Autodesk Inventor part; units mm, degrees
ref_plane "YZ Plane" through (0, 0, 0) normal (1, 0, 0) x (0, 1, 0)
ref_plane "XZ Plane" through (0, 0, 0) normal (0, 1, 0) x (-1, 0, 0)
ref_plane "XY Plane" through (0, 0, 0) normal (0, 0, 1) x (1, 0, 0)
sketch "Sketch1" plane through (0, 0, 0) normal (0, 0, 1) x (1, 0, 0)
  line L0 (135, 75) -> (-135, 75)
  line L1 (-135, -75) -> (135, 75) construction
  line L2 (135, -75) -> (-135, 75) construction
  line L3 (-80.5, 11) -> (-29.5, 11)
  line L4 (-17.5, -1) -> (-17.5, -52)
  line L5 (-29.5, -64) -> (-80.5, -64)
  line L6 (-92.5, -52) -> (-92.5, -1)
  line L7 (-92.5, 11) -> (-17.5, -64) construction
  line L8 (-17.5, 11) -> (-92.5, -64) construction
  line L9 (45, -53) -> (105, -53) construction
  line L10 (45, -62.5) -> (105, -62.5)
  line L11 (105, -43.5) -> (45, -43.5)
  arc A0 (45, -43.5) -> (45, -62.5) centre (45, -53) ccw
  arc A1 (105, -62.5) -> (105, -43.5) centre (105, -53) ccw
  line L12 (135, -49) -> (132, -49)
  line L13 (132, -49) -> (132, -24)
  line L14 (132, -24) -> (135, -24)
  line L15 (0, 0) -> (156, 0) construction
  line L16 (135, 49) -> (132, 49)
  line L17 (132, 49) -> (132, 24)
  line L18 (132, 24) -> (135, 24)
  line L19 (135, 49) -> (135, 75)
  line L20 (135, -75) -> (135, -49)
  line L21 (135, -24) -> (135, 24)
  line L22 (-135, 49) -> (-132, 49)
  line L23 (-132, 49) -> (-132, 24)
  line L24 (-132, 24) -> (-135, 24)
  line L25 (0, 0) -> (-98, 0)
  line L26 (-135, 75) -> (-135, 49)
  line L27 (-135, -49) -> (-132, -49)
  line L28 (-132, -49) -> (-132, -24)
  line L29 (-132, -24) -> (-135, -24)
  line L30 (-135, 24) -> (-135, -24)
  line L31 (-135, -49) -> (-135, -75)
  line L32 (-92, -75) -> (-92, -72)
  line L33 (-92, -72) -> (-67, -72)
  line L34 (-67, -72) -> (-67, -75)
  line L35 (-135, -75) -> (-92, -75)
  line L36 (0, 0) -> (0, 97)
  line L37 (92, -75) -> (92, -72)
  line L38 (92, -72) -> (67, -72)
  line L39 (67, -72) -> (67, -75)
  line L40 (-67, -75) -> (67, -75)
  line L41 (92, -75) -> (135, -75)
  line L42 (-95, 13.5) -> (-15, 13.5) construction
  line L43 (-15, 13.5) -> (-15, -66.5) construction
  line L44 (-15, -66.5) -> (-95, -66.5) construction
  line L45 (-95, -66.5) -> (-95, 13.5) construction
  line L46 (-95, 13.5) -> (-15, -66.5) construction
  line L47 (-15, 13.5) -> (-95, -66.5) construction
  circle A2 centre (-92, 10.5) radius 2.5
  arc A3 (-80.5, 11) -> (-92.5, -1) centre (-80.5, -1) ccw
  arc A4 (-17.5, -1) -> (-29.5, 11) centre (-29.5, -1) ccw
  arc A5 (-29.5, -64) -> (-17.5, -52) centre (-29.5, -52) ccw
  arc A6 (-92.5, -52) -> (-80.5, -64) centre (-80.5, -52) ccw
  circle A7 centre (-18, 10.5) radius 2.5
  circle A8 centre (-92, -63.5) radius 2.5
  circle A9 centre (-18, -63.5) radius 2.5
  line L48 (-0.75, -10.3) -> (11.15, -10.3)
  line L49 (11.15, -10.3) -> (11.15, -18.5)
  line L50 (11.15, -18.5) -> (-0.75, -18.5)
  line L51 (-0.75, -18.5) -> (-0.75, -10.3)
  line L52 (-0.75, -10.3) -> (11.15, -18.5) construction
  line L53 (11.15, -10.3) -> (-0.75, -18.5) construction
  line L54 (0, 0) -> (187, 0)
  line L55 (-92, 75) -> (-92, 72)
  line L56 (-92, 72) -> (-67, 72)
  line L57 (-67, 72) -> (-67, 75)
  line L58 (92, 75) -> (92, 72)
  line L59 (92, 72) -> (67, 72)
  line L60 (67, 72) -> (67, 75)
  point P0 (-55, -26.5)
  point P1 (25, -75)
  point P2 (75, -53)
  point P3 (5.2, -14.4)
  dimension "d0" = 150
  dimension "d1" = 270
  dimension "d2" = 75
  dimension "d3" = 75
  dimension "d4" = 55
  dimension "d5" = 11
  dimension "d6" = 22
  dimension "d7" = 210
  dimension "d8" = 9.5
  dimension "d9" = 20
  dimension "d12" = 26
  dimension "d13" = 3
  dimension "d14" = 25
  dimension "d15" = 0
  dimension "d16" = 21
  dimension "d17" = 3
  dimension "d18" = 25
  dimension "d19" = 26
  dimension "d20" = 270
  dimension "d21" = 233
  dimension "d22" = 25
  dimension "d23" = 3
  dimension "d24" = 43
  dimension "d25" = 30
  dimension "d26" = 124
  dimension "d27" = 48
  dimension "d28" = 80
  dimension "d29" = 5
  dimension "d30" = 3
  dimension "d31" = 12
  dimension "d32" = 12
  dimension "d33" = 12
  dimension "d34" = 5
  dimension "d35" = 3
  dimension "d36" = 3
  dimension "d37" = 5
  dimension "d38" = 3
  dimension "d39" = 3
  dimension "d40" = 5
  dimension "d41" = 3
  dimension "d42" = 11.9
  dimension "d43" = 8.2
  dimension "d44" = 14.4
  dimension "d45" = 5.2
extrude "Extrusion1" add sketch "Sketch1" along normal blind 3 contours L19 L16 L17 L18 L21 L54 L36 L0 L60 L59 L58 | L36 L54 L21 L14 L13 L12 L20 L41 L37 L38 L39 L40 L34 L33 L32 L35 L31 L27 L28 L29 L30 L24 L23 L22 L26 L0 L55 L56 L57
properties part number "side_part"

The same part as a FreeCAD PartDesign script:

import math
import FreeCAD as App
import Part
import Sketcher
from FreeCAD import Vector
Q = App.Units.Quantity

doc = App.newDocument("Part")
body = doc.addObject("PartDesign::Body", "Body")

sketch1 = doc.addObject("Sketcher::SketchObject", "Sketch")
body.addObject(sketch1)
sketch1.AttachmentSupport = (doc.XY_Plane, [""])
sketch1.MapMode = "FlatFace"
sketch1.addGeometry(Part.LineSegment(Vector(135, 49, 0), Vector(135, 75, 0)), False)
sketch1.addGeometry(Part.LineSegment(Vector(135, 75, 0), Vector(92, 75, 0)), False)
sketch1.addGeometry(Part.LineSegment(Vector(92, 75, 0), Vector(92, 72, 0)), False)
sketch1.addGeometry(Part.LineSegment(Vector(92, 72, 0), Vector(67, 72, 0)), False)
sketch1.addGeometry(Part.LineSegment(Vector(67, 72, 0), Vector(67, 75, 0)), False)
sketch1.addGeometry(Part.LineSegment(Vector(67, 75, 0), Vector(-67, 75, 0)), False)
sketch1.addGeometry(Part.LineSegment(Vector(-67, 75, 0), Vector(-67, 72, 0)), False)
sketch1.addGeometry(Part.LineSegment(Vector(-67, 72, 0), Vector(-92, 72, 0)), False)
sketch1.addGeometry(Part.LineSegment(Vector(-92, 72, 0), Vector(-92, 75, 0)), False)
sketch1.addGeometry(Part.LineSegment(Vector(-92, 75, 0), Vector(-135, 75, 0)), False)
sketch1.addGeometry(Part.LineSegment(Vector(-135, 75, 0), Vector(-135, 49, 0)), False)
sketch1.addGeometry(Part.LineSegment(Vector(-135, 49, 0), Vector(-132, 49, 0)), False)
sketch1.addGeometry(Part.LineSegment(Vector(-132, 49, 0), Vector(-132, 24, 0)), False)
sketch1.addGeometry(Part.LineSegment(Vector(-132, 24, 0), Vector(-135, 24, 0)), False)
sketch1.addGeometry(Part.LineSegment(Vector(-135, 24, 0), Vector(-135, -24, 0)), False)
sketch1.addGeometry(Part.LineSegment(Vector(-135, -24, 0), Vector(-132, -24, 0)), False)
sketch1.addGeometry(Part.LineSegment(Vector(-132, -24, 0), Vector(-132, -49, 0)), False)
sketch1.addGeometry(Part.LineSegment(Vector(-132, -49, 0), Vector(-135, -49, 0)), False)
sketch1.addGeometry(Part.LineSegment(Vector(-135, -49, 0), Vector(-135, -75, 0)), False)
sketch1.addGeometry(Part.LineSegment(Vector(-135, -75, 0), Vector(-92, -75, 0)), False)
sketch1.addGeometry(Part.LineSegment(Vector(-92, -75, 0), Vector(-92, -72, 0)), False)
sketch1.addGeometry(Part.LineSegment(Vector(-92, -72, 0), Vector(-67, -72, 0)), False)
sketch1.addGeometry(Part.LineSegment(Vector(-67, -72, 0), Vector(-67, -75, 0)), False)
sketch1.addGeometry(Part.LineSegment(Vector(-67, -75, 0), Vector(67, -75, 0)), False)
sketch1.addGeometry(Part.LineSegment(Vector(67, -75, 0), Vector(67, -72, 0)), False)
sketch1.addGeometry(Part.LineSegment(Vector(67, -72, 0), Vector(92, -72, 0)), False)
sketch1.addGeometry(Part.LineSegment(Vector(92, -72, 0), Vector(92, -75, 0)), False)
sketch1.addGeometry(Part.LineSegment(Vector(92, -75, 0), Vector(135, -75, 0)), False)
sketch1.addGeometry(Part.LineSegment(Vector(135, -75, 0), Vector(135, -49, 0)), False)
sketch1.addGeometry(Part.LineSegment(Vector(135, -49, 0), Vector(132, -49, 0)), False)
sketch1.addGeometry(Part.LineSegment(Vector(132, -49, 0), Vector(132, -24, 0)), False)
sketch1.addGeometry(Part.LineSegment(Vector(132, -24, 0), Vector(135, -24, 0)), False)
sketch1.addGeometry(Part.LineSegment(Vector(135, -24, 0), Vector(135, 24, 0)), False)
sketch1.addGeometry(Part.LineSegment(Vector(135, 24, 0), Vector(132, 24, 0)), False)
sketch1.addGeometry(Part.LineSegment(Vector(132, 24, 0), Vector(132, 49, 0)), False)
sketch1.addGeometry(Part.LineSegment(Vector(132, 49, 0), Vector(135, 49, 0)), False)
sketch1.addGeometry(Part.Circle(Vector(-18, 10.5, 0), Vector(0, 0, 1), 2.5), False)
sketch1.addGeometry(Part.Circle(Vector(-92, -63.5, 0), Vector(0, 0, 1), 2.5), False)
sketch1.addGeometry(Part.Circle(Vector(-18, -63.5, 0), Vector(0, 0, 1), 2.5), False)
sketch1.addGeometry(Part.ArcOfCircle(Part.Circle(Vector(-29.5, -1, 0), Vector(0, 0, 1), 12), math.radians(5), math.radians(90)), False)
sketch1.addGeometry(Part.ArcOfCircle(Part.Circle(Vector(-29.5, -1, 0), Vector(0, 0, 1), 12), math.radians(0), math.radians(4.78)), False)
sketch1.addGeometry(Part.LineSegment(Vector(-17.5, -1, 0), Vector(-17.5, -52, 0)), False)
sketch1.addGeometry(Part.ArcOfCircle(Part.Circle(Vector(-29.5, -52, 0), Vector(0, 0, 1), 12), math.radians(-90), math.radians(0)), False)
sketch1.addGeometry(Part.LineSegment(Vector(-29.5, -64, 0), Vector(-80.5, -64, 0)), False)
sketch1.addGeometry(Part.ArcOfCircle(Part.Circle(Vector(-80.5, -52, 0), Vector(0, 0, 1), 12), math.radians(180), math.radians(270)), False)
sketch1.addGeometry(Part.LineSegment(Vector(-92.5, -52, 0), Vector(-92.5, -1, 0)), False)
sketch1.addGeometry(Part.ArcOfCircle(Part.Circle(Vector(-80.5, -1, 0), Vector(0, 0, 1), 12), math.radians(90), math.radians(180)), False)
sketch1.addGeometry(Part.LineSegment(Vector(-80.5, 11, 0), Vector(-29.5, 11, 0)), False)
sketch1.addGeometry(Part.LineSegment(Vector(105, -62.5, 0), Vector(45, -62.5, 0)), False)
sketch1.addGeometry(Part.ArcOfCircle(Part.Circle(Vector(45, -53, 0), Vector(0, 0, 1), 9.5), math.radians(90), math.radians(270)), False)
sketch1.addGeometry(Part.LineSegment(Vector(45, -43.5, 0), Vector(105, -43.5, 0)), False)
sketch1.addGeometry(Part.ArcOfCircle(Part.Circle(Vector(105, -53, 0), Vector(0, 0, 1), 9.5), math.radians(-90), math.radians(90)), False)
sketch1.addGeometry(Part.LineSegment(Vector(-0.8, -18.5, 0), Vector(-0.8, -10.3, 0)), False)
sketch1.addGeometry(Part.LineSegment(Vector(-0.8, -10.3, 0), Vector(11.2, -10.3, 0)), False)
sketch1.addGeometry(Part.LineSegment(Vector(11.2, -10.3, 0), Vector(11.2, -18.5, 0)), False)
sketch1.addGeometry(Part.LineSegment(Vector(11.2, -18.5, 0), Vector(-0.8, -18.5, 0)), False)
sketch1.addGeometry(Part.Circle(Vector(-92, 10.5, 0), Vector(0, 0, 1), 2.5), False)
sketch1.addConstraint(Sketcher.Constraint("Coincident", 0, 2, 1, 1))
sketch1.addConstraint(Sketcher.Constraint("Coincident", 1, 2, 2, 1))
sketch1.addConstraint(Sketcher.Constraint("Coincident", 2, 2, 3, 1))
sketch1.addConstraint(Sketcher.Constraint("Coincident", 3, 2, 4, 1))
sketch1.addConstraint(Sketcher.Constraint("Coincident", 4, 2, 5, 1))
sketch1.addConstraint(Sketcher.Constraint("Coincident", 5, 2, 6, 1))
sketch1.addConstraint(Sketcher.Constraint("Coincident", 6, 2, 7, 1))
sketch1.addConstraint(Sketcher.Constraint("Coincident", 7, 2, 8, 1))
sketch1.addConstraint(Sketcher.Constraint("Coincident", 8, 2, 9, 1))
sketch1.addConstraint(Sketcher.Constraint("Coincident", 9, 2, 10, 1))
sketch1.addConstraint(Sketcher.Constraint("Coincident", 10, 2, 11, 1))
sketch1.addConstraint(Sketcher.Constraint("Coincident", 11, 2, 12, 1))
sketch1.addConstraint(Sketcher.Constraint("Coincident", 12, 2, 13, 1))
sketch1.addConstraint(Sketcher.Constraint("Coincident", 13, 2, 14, 1))
sketch1.addConstraint(Sketcher.Constraint("Coincident", 14, 2, 15, 1))
sketch1.addConstraint(Sketcher.Constraint("Coincident", 15, 2, 16, 1))
sketch1.addConstraint(Sketcher.Constraint("Coincident", 16, 2, 17, 1))
sketch1.addConstraint(Sketcher.Constraint("Coincident", 17, 2, 18, 1))
sketch1.addConstraint(Sketcher.Constraint("Coincident", 18, 2, 19, 1))
sketch1.addConstraint(Sketcher.Constraint("Coincident", 19, 2, 20, 1))
sketch1.addConstraint(Sketcher.Constraint("Coincident", 20, 2, 21, 1))
sketch1.addConstraint(Sketcher.Constraint("Coincident", 21, 2, 22, 1))
sketch1.addConstraint(Sketcher.Constraint("Coincident", 22, 2, 23, 1))
sketch1.addConstraint(Sketcher.Constraint("Coincident", 23, 2, 24, 1))
sketch1.addConstraint(Sketcher.Constraint("Coincident", 24, 2, 25, 1))
sketch1.addConstraint(Sketcher.Constraint("Coincident", 25, 2, 26, 1))
sketch1.addConstraint(Sketcher.Constraint("Coincident", 26, 2, 27, 1))
sketch1.addConstraint(Sketcher.Constraint("Coincident", 27, 2, 28, 1))
sketch1.addConstraint(Sketcher.Constraint("Coincident", 28, 2, 29, 1))
sketch1.addConstraint(Sketcher.Constraint("Coincident", 29, 2, 30, 1))
sketch1.addConstraint(Sketcher.Constraint("Coincident", 30, 2, 31, 1))
sketch1.addConstraint(Sketcher.Constraint("Coincident", 31, 2, 32, 1))
sketch1.addConstraint(Sketcher.Constraint("Coincident", 32, 2, 33, 1))
sketch1.addConstraint(Sketcher.Constraint("Coincident", 33, 2, 34, 1))
sketch1.addConstraint(Sketcher.Constraint("Coincident", 34, 2, 35, 1))
sketch1.addConstraint(Sketcher.Constraint("Coincident", 35, 2, 0, 1))
sketch1.addConstraint(Sketcher.Constraint("Tangent", 39, 1, 40, 2))
sketch1.addConstraint(Sketcher.Constraint("Tangent", 40, 1, 41, 1))
sketch1.addConstraint(Sketcher.Constraint("Tangent", 41, 2, 42, 2))
sketch1.addConstraint(Sketcher.Constraint("Tangent", 42, 1, 43, 1))
sketch1.addConstraint(Sketcher.Constraint("Tangent", 43, 2, 44, 2))
sketch1.addConstraint(Sketcher.Constraint("Tangent", 44, 1, 45, 1))
sketch1.addConstraint(Sketcher.Constraint("Tangent", 45, 2, 46, 2))
sketch1.addConstraint(Sketcher.Constraint("Tangent", 46, 1, 47, 1))
sketch1.addConstraint(Sketcher.Constraint("Tangent", 47, 2, 39, 2))
sketch1.addConstraint(Sketcher.Constraint("Tangent", 48, 2, 49, 2))
sketch1.addConstraint(Sketcher.Constraint("Tangent", 49, 1, 50, 1))
sketch1.addConstraint(Sketcher.Constraint("Tangent", 50, 2, 51, 2))
sketch1.addConstraint(Sketcher.Constraint("Tangent", 51, 1, 48, 1))
sketch1.addConstraint(Sketcher.Constraint("Coincident", 52, 2, 53, 1))
sketch1.addConstraint(Sketcher.Constraint("Coincident", 53, 2, 54, 1))
sketch1.addConstraint(Sketcher.Constraint("Coincident", 54, 2, 55, 1))
sketch1.addConstraint(Sketcher.Constraint("Coincident", 55, 2, 52, 1))
sketch1.addConstraint(Sketcher.Constraint("Vertical", 0))
sketch1.addConstraint(Sketcher.Constraint("Horizontal", 1))
sketch1.addConstraint(Sketcher.Constraint("Vertical", 2))
sketch1.addConstraint(Sketcher.Constraint("Horizontal", 3))
sketch1.addConstraint(Sketcher.Constraint("Vertical", 4))
sketch1.addConstraint(Sketcher.Constraint("Horizontal", 5))
sketch1.addConstraint(Sketcher.Constraint("Vertical", 6))
sketch1.addConstraint(Sketcher.Constraint("Horizontal", 7))
sketch1.addConstraint(Sketcher.Constraint("Vertical", 8))
sketch1.addConstraint(Sketcher.Constraint("Horizontal", 9))
sketch1.addConstraint(Sketcher.Constraint("Vertical", 10))
sketch1.addConstraint(Sketcher.Constraint("Horizontal", 11))
sketch1.addConstraint(Sketcher.Constraint("Vertical", 12))
sketch1.addConstraint(Sketcher.Constraint("Horizontal", 13))
sketch1.addConstraint(Sketcher.Constraint("Vertical", 14))
sketch1.addConstraint(Sketcher.Constraint("Horizontal", 15))
sketch1.addConstraint(Sketcher.Constraint("Vertical", 16))
sketch1.addConstraint(Sketcher.Constraint("Horizontal", 17))
sketch1.addConstraint(Sketcher.Constraint("Vertical", 18))
sketch1.addConstraint(Sketcher.Constraint("Horizontal", 19))
sketch1.addConstraint(Sketcher.Constraint("Vertical", 20))
sketch1.addConstraint(Sketcher.Constraint("Horizontal", 21))
sketch1.addConstraint(Sketcher.Constraint("Vertical", 22))
sketch1.addConstraint(Sketcher.Constraint("Horizontal", 23))
sketch1.addConstraint(Sketcher.Constraint("Vertical", 24))
sketch1.addConstraint(Sketcher.Constraint("Horizontal", 25))
sketch1.addConstraint(Sketcher.Constraint("Vertical", 26))
sketch1.addConstraint(Sketcher.Constraint("Horizontal", 27))
sketch1.addConstraint(Sketcher.Constraint("Vertical", 28))
sketch1.addConstraint(Sketcher.Constraint("Horizontal", 29))
sketch1.addConstraint(Sketcher.Constraint("Vertical", 30))
sketch1.addConstraint(Sketcher.Constraint("Horizontal", 31))
sketch1.addConstraint(Sketcher.Constraint("Vertical", 32))
sketch1.addConstraint(Sketcher.Constraint("Horizontal", 33))
sketch1.addConstraint(Sketcher.Constraint("Vertical", 34))
sketch1.addConstraint(Sketcher.Constraint("Horizontal", 35))
sketch1.addConstraint(Sketcher.Constraint("Vertical", 41))
sketch1.addConstraint(Sketcher.Constraint("Horizontal", 43))
sketch1.addConstraint(Sketcher.Constraint("Vertical", 45))
sketch1.addConstraint(Sketcher.Constraint("Horizontal", 47))
sketch1.addConstraint(Sketcher.Constraint("Horizontal", 48))
sketch1.addConstraint(Sketcher.Constraint("Horizontal", 50))
sketch1.addConstraint(Sketcher.Constraint("Vertical", 52))
sketch1.addConstraint(Sketcher.Constraint("Horizontal", 53))
sketch1.addConstraint(Sketcher.Constraint("Vertical", 54))
sketch1.addConstraint(Sketcher.Constraint("Horizontal", 55))
sketch1.addConstraint(Sketcher.Constraint("Equal", 36, 37))
sketch1.addConstraint(Sketcher.Constraint("Equal", 37, 38))
sketch1.addConstraint(Sketcher.Constraint("Equal", 39, 40))
sketch1.addConstraint(Sketcher.Constraint("Equal", 40, 42))
sketch1.addConstraint(Sketcher.Constraint("Equal", 42, 44))
sketch1.addConstraint(Sketcher.Constraint("Equal", 44, 46))
sketch1.addConstraint(Sketcher.Constraint("Equal", 38, 56))
sketch1.addConstraint(Sketcher.Constraint("Symmetric", 0, 2, 18, 2, -1, 1))
sketch1.addConstraint(Sketcher.Constraint("Symmetric", 2, 2, 20, 2, -1, 1))
sketch1.addConstraint(Sketcher.Constraint("Symmetric", 4, 2, 22, 2, -1, 1))
sketch1.addConstraint(Sketcher.Constraint("Symmetric", 6, 2, 24, 2, -1, 1))
sketch1.addConstraint(Sketcher.Constraint("Symmetric", 8, 2, 26, 2, -1, 1))
sketch1.addConstraint(Sketcher.Constraint("Symmetric", 10, 2, 28, 2, -1, 1))
sketch1.addConstraint(Sketcher.Constraint("Symmetric", 12, 2, 30, 2, -1, 1))
sketch1.addConstraint(Sketcher.Constraint("Symmetric", 14, 2, 32, 2, -1, 1))
sketch1.addConstraint(Sketcher.Constraint("Symmetric", 16, 2, 34, 2, -1, 1))
sketch1.addConstraint(Sketcher.Constraint("Symmetric", 3, 2, 6, 2, -2))
sketch1.addConstraint(Sketcher.Constraint("Symmetric", 1, 2, 8, 2, -2))
sketch1.addConstraint(Sketcher.Constraint("Symmetric", 17, 2, 28, 2, -2))
sketch1.addConstraint(Sketcher.Constraint("Symmetric", 15, 2, 30, 2, -2))
sketch1.addConstraint(Sketcher.Constraint("PointOnObject", 39, 1, -1))
sketch1.addConstraint(Sketcher.Constraint("Horizontal", 37, 3, 38, 3))
sketch1.addConstraint(Sketcher.Constraint("Horizontal", 36, 3, 56, 3))
sketch1.addConstraint(Sketcher.Constraint("Horizontal", 1, 2, 4, 2))
sketch1.addConstraint(Sketcher.Constraint("Vertical", 36, 3, 38, 3))
sketch1.addConstraint(Sketcher.Constraint("Vertical", 37, 3, 56, 3))
sketch1.addConstraint(Sketcher.Constraint("Vertical", 56, 3, 7, 2))
sketch1.addConstraint(Sketcher.Constraint("Vertical", 10, 2, 13, 2))
sketch1.addConstraint(Sketcher.Constraint("Equal", 35, 2))
sketch1.addConstraint(Sketcher.Constraint("Equal", 25, 12))
sketch1.addConstraint(Sketcher.Constraint("Equal", 47, 41))
sketch1.addConstraint(Sketcher.Constraint("Diameter", 36, Q("5 mm")))
sketch1.addConstraint(Sketcher.Constraint("Radius", 39, Q("12 mm")))
sketch1.addConstraint(Sketcher.Constraint("Radius", 49, Q("9.5 mm")))
sketch1.addConstraint(Sketcher.Constraint("DistanceX", 1, 2, 1, 1, Q("43 mm")))
sketch1.addConstraint(Sketcher.Constraint("DistanceX", 3, 2, 3, 1, Q("25 mm")))
sketch1.addConstraint(Sketcher.Constraint("DistanceX", 11, 1, 11, 2, Q("3 mm")))
sketch1.addConstraint(Sketcher.Constraint("DistanceY", 0, 1, 0, 2, Q("26 mm")))
sketch1.addConstraint(Sketcher.Constraint("DistanceY", 14, 2, 14, 1, Q("48 mm")))
sketch1.addConstraint(Sketcher.Constraint("DistanceX", 53, 1, 53, 2, Q("11.9 mm")))
sketch1.addConstraint(Sketcher.Constraint("DistanceY", 52, 1, 52, 2, Q("8.2 mm")))
sketch1.addConstraint(Sketcher.Constraint("DistanceY", -1, 1, 46, 1, Q("11 mm")))
sketch1.addConstraint(Sketcher.Constraint("DistanceX", 5, 2, 5, 1, Q("134 mm")))
sketch1.addConstraint(Sketcher.Constraint("DistanceX", 43, 2, 43, 1, Q("51 mm")))
sketch1.addConstraint(Sketcher.Constraint("DistanceX", 48, 2, 48, 1, Q("60 mm")))
sketch1.addConstraint(Sketcher.Constraint("DistanceX", 36, 3, -1, 1, Q("18 mm")))
sketch1.addConstraint(Sketcher.Constraint("DistanceX", -1, 1, 49, 3, Q("45 mm")))
sketch1.addConstraint(Sketcher.Constraint("DistanceY", 49, 3, -1, 1, Q("53 mm")))
sketch1.addConstraint(Sketcher.Constraint("DistanceY", -1, 1, 36, 3, Q("10.5 mm")))
sketch1.addConstraint(Sketcher.Constraint("DistanceY", 37, 3, -1, 1, Q("63.5 mm")))
sketch1.addConstraint(Sketcher.Constraint("DistanceX", 39, 3, -1, 1, Q("29.5 mm")))
sketch1.addConstraint(Sketcher.Constraint("DistanceY", 52, 2, -1, 1, Q("10.3 mm")))
sketch1.addConstraint(Sketcher.Constraint("DistanceX", 52, 2, -1, 1, Q("0.75 mm")))
pad1 = doc.addObject("PartDesign::Pad", "Pad")
body.addObject(pad1)
pad1.Profile = sketch1
pad1.Length = 3

doc.recompute()
